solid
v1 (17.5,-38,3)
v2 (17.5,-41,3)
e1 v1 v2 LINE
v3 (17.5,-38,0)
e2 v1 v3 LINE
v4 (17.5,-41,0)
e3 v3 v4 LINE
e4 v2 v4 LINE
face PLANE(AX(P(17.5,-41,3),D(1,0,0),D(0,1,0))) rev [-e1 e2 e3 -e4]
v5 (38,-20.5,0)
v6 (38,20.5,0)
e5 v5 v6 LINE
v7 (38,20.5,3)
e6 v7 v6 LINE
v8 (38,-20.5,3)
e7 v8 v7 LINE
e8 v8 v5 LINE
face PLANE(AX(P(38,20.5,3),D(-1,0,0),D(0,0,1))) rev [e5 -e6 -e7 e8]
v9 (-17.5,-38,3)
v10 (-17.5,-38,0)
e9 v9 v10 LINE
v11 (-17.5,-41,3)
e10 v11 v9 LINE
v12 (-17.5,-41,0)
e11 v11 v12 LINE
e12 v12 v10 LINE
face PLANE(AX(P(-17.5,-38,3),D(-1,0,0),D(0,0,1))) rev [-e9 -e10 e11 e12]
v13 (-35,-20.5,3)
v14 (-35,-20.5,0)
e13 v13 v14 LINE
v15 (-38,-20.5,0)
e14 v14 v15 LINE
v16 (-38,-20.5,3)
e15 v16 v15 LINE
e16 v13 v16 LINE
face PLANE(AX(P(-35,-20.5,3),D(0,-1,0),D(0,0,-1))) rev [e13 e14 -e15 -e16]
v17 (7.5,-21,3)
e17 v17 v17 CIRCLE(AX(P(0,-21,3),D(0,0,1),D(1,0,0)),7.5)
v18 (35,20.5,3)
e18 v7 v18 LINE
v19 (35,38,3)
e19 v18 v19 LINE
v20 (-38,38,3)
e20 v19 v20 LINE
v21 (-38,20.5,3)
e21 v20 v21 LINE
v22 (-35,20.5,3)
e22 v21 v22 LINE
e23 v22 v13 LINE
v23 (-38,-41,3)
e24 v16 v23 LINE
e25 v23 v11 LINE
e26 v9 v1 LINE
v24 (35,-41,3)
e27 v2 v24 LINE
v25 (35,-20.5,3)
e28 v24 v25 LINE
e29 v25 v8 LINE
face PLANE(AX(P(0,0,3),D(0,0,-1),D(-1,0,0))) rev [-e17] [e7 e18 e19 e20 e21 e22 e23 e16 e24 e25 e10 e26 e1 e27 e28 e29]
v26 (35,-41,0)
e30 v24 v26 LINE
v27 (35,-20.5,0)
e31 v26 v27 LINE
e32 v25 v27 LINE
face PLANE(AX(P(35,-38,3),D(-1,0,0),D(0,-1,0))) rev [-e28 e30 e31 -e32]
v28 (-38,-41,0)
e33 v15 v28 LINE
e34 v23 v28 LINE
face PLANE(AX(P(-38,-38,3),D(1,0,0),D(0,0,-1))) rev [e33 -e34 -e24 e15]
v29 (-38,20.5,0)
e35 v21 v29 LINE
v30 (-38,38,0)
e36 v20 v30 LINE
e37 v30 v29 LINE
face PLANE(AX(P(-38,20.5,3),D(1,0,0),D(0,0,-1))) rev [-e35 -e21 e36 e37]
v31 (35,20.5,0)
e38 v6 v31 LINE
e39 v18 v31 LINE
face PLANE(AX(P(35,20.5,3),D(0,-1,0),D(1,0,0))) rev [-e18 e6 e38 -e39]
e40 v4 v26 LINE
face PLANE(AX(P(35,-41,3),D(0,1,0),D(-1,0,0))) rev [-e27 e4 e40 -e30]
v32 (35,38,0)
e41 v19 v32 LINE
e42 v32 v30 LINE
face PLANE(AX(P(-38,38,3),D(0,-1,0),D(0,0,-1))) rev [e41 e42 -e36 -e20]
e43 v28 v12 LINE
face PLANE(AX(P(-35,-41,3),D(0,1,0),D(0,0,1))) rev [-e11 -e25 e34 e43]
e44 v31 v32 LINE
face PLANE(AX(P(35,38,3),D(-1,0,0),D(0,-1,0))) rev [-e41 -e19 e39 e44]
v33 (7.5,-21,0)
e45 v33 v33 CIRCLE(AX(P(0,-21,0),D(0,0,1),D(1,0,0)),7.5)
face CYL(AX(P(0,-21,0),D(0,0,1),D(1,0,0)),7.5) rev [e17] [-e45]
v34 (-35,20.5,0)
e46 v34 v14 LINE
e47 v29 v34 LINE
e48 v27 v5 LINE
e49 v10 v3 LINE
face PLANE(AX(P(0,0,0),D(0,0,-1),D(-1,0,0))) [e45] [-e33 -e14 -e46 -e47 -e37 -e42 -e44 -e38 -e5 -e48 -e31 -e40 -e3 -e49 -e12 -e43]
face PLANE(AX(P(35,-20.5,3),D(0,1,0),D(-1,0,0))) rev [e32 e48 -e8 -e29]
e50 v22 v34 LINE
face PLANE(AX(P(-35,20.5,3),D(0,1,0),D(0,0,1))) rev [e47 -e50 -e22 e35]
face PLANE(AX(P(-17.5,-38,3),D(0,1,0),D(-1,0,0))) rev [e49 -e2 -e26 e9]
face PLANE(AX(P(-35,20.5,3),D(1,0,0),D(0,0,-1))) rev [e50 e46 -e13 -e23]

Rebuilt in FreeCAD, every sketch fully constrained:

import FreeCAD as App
import Part
import Sketcher

V = App.Vector


def add_polygon(sketch, points):
    """Adds a closed chain of lines whose ends are joined by coincident constraints."""
    first, n = sketch.GeometryCount, len(points)
    for a, b in zip(points, points[1:] + points[:1]):
        sketch.addGeometry(Part.LineSegment(App.Vector(*a, 0), App.Vector(*b, 0)), False)
    for i in range(n):
        sketch.addConstraint(Sketcher.Constraint("Coincident", first + i, 2, first + (i + 1) % n, 1))

doc = App.newDocument("Part")
params = doc.addObject("Spreadsheet::Sheet", "Params")
for row, (alias, value) in enumerate([
    ("sketch1_width", "73 mm"),
    ("sketch1_width2", "3 mm"),
    ("sketch1_width3", "35 mm"),
    ("sketch1_height", "41 mm"),
    ("pad1_length", "3 mm"),
    ("sketch2_diameter", "15 mm"),
    ("pocket1_length", "3 mm"),
], start=1):
    params.set(f"A{row}", alias)
    params.set(f"B{row}", "=" + value)
    params.setAlias(f"B{row}", alias)

body = doc.addObject("PartDesign::Body", "Body")

sketch1 = body.newObject("Sketcher::SketchObject", "Sketch")
sketch1.AttachmentSupport = (doc.getObject("XY_Plane"), [""])
sketch1.MapMode = "FlatFace"
add_polygon(sketch1, [(35, 38), (-38, 38), (-38, 20.5), (-35, 20.5), (-35, -20.5), (-38, -20.5), (-38, -41), (-17.5, -41), (-17.5, -38), (17.5, -38), (17.5, -41), (35, -41), (35, -20.5), (38, -20.5), (38, 20.5), (35, 20.5)])
sketch1.addConstraint(Sketcher.Constraint("Horizontal", 0))
sketch1.addConstraint(Sketcher.Constraint("Vertical", 1))
sketch1.addConstraint(Sketcher.Constraint("Horizontal", 2))
sketch1.addConstraint(Sketcher.Constraint("Vertical", 3))
sketch1.addConstraint(Sketcher.Constraint("Horizontal", 4))
sketch1.addConstraint(Sketcher.Constraint("Vertical", 5))
sketch1.addConstraint(Sketcher.Constraint("Horizontal", 6))
sketch1.addConstraint(Sketcher.Constraint("Vertical", 7))
sketch1.addConstraint(Sketcher.Constraint("Horizontal", 8))
sketch1.addConstraint(Sketcher.Constraint("Vertical", 9))
sketch1.addConstraint(Sketcher.Constraint("Horizontal", 10))
sketch1.addConstraint(Sketcher.Constraint("Vertical", 11))
sketch1.addConstraint(Sketcher.Constraint("Horizontal", 12))
sketch1.addConstraint(Sketcher.Constraint("Vertical", 13))
sketch1.addConstraint(Sketcher.Constraint("Horizontal", 14))
sketch1.addConstraint(Sketcher.Constraint("Vertical", 15))
sketch1.addConstraint(Sketcher.Constraint("Symmetric", 2, 2, 11, 2, -1, 1))
sketch1.addConstraint(Sketcher.Constraint("Symmetric", 4, 2, 13, 2, -1, 1))
sketch1.addConstraint(Sketcher.Constraint("Symmetric", 6, 2, 9, 2, -2))
sketch1.addConstraint(Sketcher.Constraint("Symmetric", 1, 2, 13, 2, -2))
sketch1.addConstraint(Sketcher.Constraint("Vertical", 11, 2, 14, 2))
sketch1.addConstraint(Sketcher.Constraint("Equal", 10, 1))
sketch1.addConstraint(Sketcher.Constraint("Equal", 6, 5))
sketch1.addConstraint(Sketcher.Constraint("Equal", 14, 7))
sketch1.addConstraint(Sketcher.Constraint("DistanceX", 0, 2, 0, 1, 73.0))
sketch1.addConstraint(Sketcher.Constraint("DistanceX", 2, 1, 2, 2, 3.0))
sketch1.addConstraint(Sketcher.Constraint("DistanceX", 8, 1, 8, 2, 35.0))
sketch1.addConstraint(Sketcher.Constraint("DistanceY", 3, 2, 3, 1, 41.0))
sketch1.setExpression("Constraints[40]", "Params.sketch1_width")
sketch1.setExpression("Constraints[41]", "Params.sketch1_width2")
sketch1.setExpression("Constraints[42]", "Params.sketch1_width3")
sketch1.setExpression("Constraints[43]", "Params.sketch1_height")
pad1 = body.newObject("PartDesign::Pad", "Pad")
pad1.Profile = sketch1
pad1.setExpression("Length", "Params.pad1_length")

sketch2 = body.newObject("Sketcher::SketchObject", "Sketch001")
sketch2.AttachmentSupport = (doc.getObject("XY_Plane"), [""])
sketch2.MapMode = "FlatFace"
sketch2.AttachmentOffset = App.Placement(V(0, 0, 3), App.Rotation())
sketch2.addGeometry(Part.Circle(V(0, -21, 0), V(0, 0, 1), 8), False)
sketch2.addConstraint(Sketcher.Constraint("PointOnObject", 0, 3, -2))
sketch2.addConstraint(Sketcher.Constraint("Diameter", 0, 15.0))
sketch2.addConstraint(Sketcher.Constraint("DistanceY", 0, 3, -1, 1, 21.0))
sketch2.setExpression("Constraints[1]", "Params.sketch2_diameter")
pocket1 = body.newObject("PartDesign::Pocket", "Pocket")
pocket1.Profile = sketch2
pocket1.setExpression("Length", "Params.pocket1_length")

doc.recompute()
